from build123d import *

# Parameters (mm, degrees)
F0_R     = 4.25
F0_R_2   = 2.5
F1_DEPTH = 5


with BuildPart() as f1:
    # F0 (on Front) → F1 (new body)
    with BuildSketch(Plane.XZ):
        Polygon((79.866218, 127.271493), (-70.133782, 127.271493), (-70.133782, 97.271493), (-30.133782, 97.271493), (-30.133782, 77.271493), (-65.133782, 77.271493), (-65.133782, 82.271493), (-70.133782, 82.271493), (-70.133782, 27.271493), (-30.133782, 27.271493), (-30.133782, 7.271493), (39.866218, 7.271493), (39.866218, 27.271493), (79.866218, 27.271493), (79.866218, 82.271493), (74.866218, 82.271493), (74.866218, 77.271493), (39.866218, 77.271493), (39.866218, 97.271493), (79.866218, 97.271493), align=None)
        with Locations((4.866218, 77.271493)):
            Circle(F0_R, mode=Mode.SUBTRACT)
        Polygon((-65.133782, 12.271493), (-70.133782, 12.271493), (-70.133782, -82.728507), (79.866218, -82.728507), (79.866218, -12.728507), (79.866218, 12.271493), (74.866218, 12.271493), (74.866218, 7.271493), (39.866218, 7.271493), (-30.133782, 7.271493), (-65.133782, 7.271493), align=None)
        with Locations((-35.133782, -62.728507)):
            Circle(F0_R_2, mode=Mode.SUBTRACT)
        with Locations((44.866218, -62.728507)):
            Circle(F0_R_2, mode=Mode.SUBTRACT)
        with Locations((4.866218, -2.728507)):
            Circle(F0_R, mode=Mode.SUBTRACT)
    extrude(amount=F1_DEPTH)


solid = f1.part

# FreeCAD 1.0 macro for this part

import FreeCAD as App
import Part
import Sketcher

doc = App.newDocument("Part")
body = doc.addObject("PartDesign::Body", "Body")

# Sketch on XZ plane
sketch1 = body.newObject("Sketcher::SketchObject", "Sketch")
sketch1.AttachmentSupport = (doc.getObject("XZ_Plane"), [""])
sketch1.MapMode = "FlatFace"
sketch1.addGeometry([
    Part.LineSegment(App.Vector(79.9, 97.3, 0), App.Vector(79.9, 127.3, 0)),  # 0
    Part.LineSegment(App.Vector(79.9, 127.3, 0), App.Vector(-70.1, 127.3, 0)),  # 1
    Part.LineSegment(App.Vector(-70.1, 127.3, 0), App.Vector(-70.1, 97.3, 0)),  # 2
    Part.LineSegment(App.Vector(-70.1, 97.3, 0), App.Vector(-30.1, 97.3, 0)),  # 3
    Part.LineSegment(App.Vector(-30.1, 97.3, 0), App.Vector(-30.1, 77.3, 0)),  # 4
    Part.LineSegment(App.Vector(-30.1, 77.3, 0), App.Vector(-65.1, 77.3, 0)),  # 5
    Part.LineSegment(App.Vector(-65.1, 77.3, 0), App.Vector(-65.1, 82.3, 0)),  # 6
    Part.LineSegment(App.Vector(-65.1, 82.3, 0), App.Vector(-70.1, 82.3, 0)),  # 7
    Part.LineSegment(App.Vector(-70.1, 82.3, 0), App.Vector(-70.1, 27.3, 0)),  # 8
    Part.LineSegment(App.Vector(-70.1, 27.3, 0), App.Vector(-30.1, 27.3, 0)),  # 9
    Part.LineSegment(App.Vector(-30.1, 27.3, 0), App.Vector(-30.1, 7.3, 0)),  # 10
    Part.LineSegment(App.Vector(-30.1, 7.3, 0), App.Vector(-65.1, 7.3, 0)),  # 11
    Part.LineSegment(App.Vector(-65.1, 7.3, 0), App.Vector(-65.1, 12.3, 0)),  # 12
    Part.LineSegment(App.Vector(-65.1, 12.3, 0), App.Vector(-70.1, 12.3, 0)),  # 13
    Part.LineSegment(App.Vector(-70.1, 12.3, 0), App.Vector(-70.1, -82.7, 0)),  # 14
    Part.LineSegment(App.Vector(-70.1, -82.7, 0), App.Vector(79.9, -82.7, 0)),  # 15
    Part.LineSegment(App.Vector(79.9, -82.7, 0), App.Vector(79.9, 12.3, 0)),  # 16
    Part.LineSegment(App.Vector(79.9, 12.3, 0), App.Vector(74.9, 12.3, 0)),  # 17
    Part.LineSegment(App.Vector(74.9, 12.3, 0), App.Vector(74.9, 7.3, 0)),  # 18
    Part.LineSegment(App.Vector(74.9, 7.3, 0), App.Vector(39.9, 7.3, 0)),  # 19
    Part.LineSegment(App.Vector(39.9, 7.3, 0), App.Vector(39.9, 27.3, 0)),  # 20
    Part.LineSegment(App.Vector(39.9, 27.3, 0), App.Vector(79.9, 27.3, 0)),  # 21
    Part.LineSegment(App.Vector(79.9, 27.3, 0), App.Vector(79.9, 82.3, 0)),  # 22
    Part.LineSegment(App.Vector(79.9, 82.3, 0), App.Vector(74.9, 82.3, 0)),  # 23
    Part.LineSegment(App.Vector(74.9, 82.3, 0), App.Vector(74.9, 77.3, 0)),  # 24
    Part.LineSegment(App.Vector(74.9, 77.3, 0), App.Vector(39.9, 77.3, 0)),  # 25
    Part.LineSegment(App.Vector(39.9, 77.3, 0), App.Vector(39.9, 97.3, 0)),  # 26
    Part.LineSegment(App.Vector(39.9, 97.3, 0), App.Vector(79.9, 97.3, 0)),  # 27
    Part.Circle(App.Vector(-35.1, -62.7, 0), App.Vector(0, 0, 1), 2.5),  # 28
    Part.Circle(App.Vector(44.9, -62.7, 0), App.Vector(0, 0, 1), 2.5),  # 29
    Part.Circle(App.Vector(4.9, -2.7, 0), App.Vector(0, 0, 1), 4.2),  # 30
    Part.Circle(App.Vector(4.9, 77.3, 0), App.Vector(0, 0, 1), 4.2),  # 31
], False)
sketch1.addConstraint([
    Sketcher.Constraint("Coincident", 0, 2, 1, 1),
    Sketcher.Constraint("Coincident", 1, 2, 2, 1),
    Sketcher.Constraint("Coincident", 2, 2, 3, 1),
    Sketcher.Constraint("Coincident", 3, 2, 4, 1),
    Sketcher.Constraint("Coincident", 4, 2, 5, 1),
    Sketcher.Constraint("Coincident", 5, 2, 6, 1),
    Sketcher.Constraint("Coincident", 6, 2, 7, 1),
    Sketcher.Constraint("Coincident", 7, 2, 8, 1),
    Sketcher.Constraint("Coincident", 8, 2, 9, 1),
    Sketcher.Constraint("Coincident", 9, 2, 10, 1),
    Sketcher.Constraint("Coincident", 10, 2, 11, 1),
    Sketcher.Constraint("Coincident", 11, 2, 12, 1),
    Sketcher.Constraint("Coincident", 12, 2, 13, 1),
    Sketcher.Constraint("Coincident", 13, 2, 14, 1),
    Sketcher.Constraint("Coincident", 14, 2, 15, 1),
    Sketcher.Constraint("Coincident", 15, 2, 16, 1),
    Sketcher.Constraint("Coincident", 16, 2, 17, 1),
    Sketcher.Constraint("Coincident", 17, 2, 18, 1),
    Sketcher.Constraint("Coincident", 18, 2, 19, 1),
    Sketcher.Constraint("Coincident", 19, 2, 20, 1),
    Sketcher.Constraint("Coincident", 20, 2, 21, 1),
    Sketcher.Constraint("Coincident", 21, 2, 22, 1),
    Sketcher.Constraint("Coincident", 22, 2, 23, 1),
    Sketcher.Constraint("Coincident", 23, 2, 24, 1),
    Sketcher.Constraint("Coincident", 24, 2, 25, 1),
    Sketcher.Constraint("Coincident", 25, 2, 26, 1),
    Sketcher.Constraint("Coincident", 26, 2, 27, 1),
    Sketcher.Constraint("Coincident", 27, 2, 0, 1),
    Sketcher.Constraint("Vertical", 0),
    Sketcher.Constraint("Horizontal", 1),
    Sketcher.Constraint("Vertical", 2),
    Sketcher.Constraint("Horizontal", 3),
    Sketcher.Constraint("Vertical", 4),
    Sketcher.Constraint("Horizontal", 5),
    Sketcher.Constraint("Vertical", 6),
    Sketcher.Constraint("Horizontal", 7),
    Sketcher.Constraint("Vertical", 8),
    Sketcher.Constraint("Horizontal", 9),
    Sketcher.Constraint("Vertical", 10),
    Sketcher.Constraint("Horizontal", 11),
    Sketcher.Constraint("Vertical", 12),
    Sketcher.Constraint("Horizontal", 13),
    Sketcher.Constraint("Vertical", 14),
    Sketcher.Constraint("Horizontal", 15),
    Sketcher.Constraint("Vertical", 16),
    Sketcher.Constraint("Horizontal", 17),
    Sketcher.Constraint("Vertical", 18),
    Sketcher.Constraint("Horizontal", 19),
    Sketcher.Constraint("Vertical", 20),
    Sketcher.Constraint("Horizontal", 21),
    Sketcher.Constraint("Vertical", 22),
    Sketcher.Constraint("Horizontal", 23),
    Sketcher.Constraint("Vertical", 24),
    Sketcher.Constraint("Horizontal", 25),
    Sketcher.Constraint("Vertical", 26),
    Sketcher.Constraint("Horizontal", 27),
    Sketcher.Constraint("Equal", 28, 29),
    Sketcher.Constraint("Equal", 30, 31),
    Sketcher.Constraint("Horizontal", 28, 3, 29, 3),
    Sketcher.Constraint("Horizontal", 31, 3, 4, 2),
    Sketcher.Constraint("Horizontal", 13, 2, 16, 2),
    Sketcher.Constraint("Horizontal", 11, 2, 18, 2),
    Sketcher.Constraint("Horizontal", 9, 2, 20, 2),
    Sketcher.Constraint("Horizontal", 7, 2, 22, 2),
    Sketcher.Constraint("Horizontal", 5, 2, 24, 2),
    Sketcher.Constraint("Horizontal", 3, 2, 26, 2),
    Sketcher.Constraint("Vertical", 30, 3, 31, 3),
    Sketcher.Constraint("Vertical", 2, 2, 7, 2),
    Sketcher.Constraint("Vertical", 4, 2, 9, 2),
    Sketcher.Constraint("Vertical", 6, 2, 11, 2),
    Sketcher.Constraint("Vertical", 8, 2, 13, 2),
    Sketcher.Constraint("Vertical", 0, 2, 15, 2),
    Sketcher.Constraint("Vertical", 16, 2, 21, 2),
    Sketcher.Constraint("Vertical", 18, 2, 23, 2),
    Sketcher.Constraint("Vertical", 20, 2, 25, 2),
    Sketcher.Constraint("Equal", 13, 17),
    Sketcher.Constraint("Equal", 11, 19),
    Sketcher.Constraint("Equal", 23, 6),
    Sketcher.Constraint("Equal", 4, 10),
    Sketcher.Constraint("Equal", 6, 12),
    Sketcher.Constraint("Diameter", 28, 5.0),
    Sketcher.Constraint("Diameter", 30, 8.5),
    Sketcher.Constraint("DistanceX", 1, 2, 1, 1, 150.0),
    Sketcher.Constraint("DistanceX", 3, 1, 3, 2, 40.0),
    Sketcher.Constraint("DistanceX", 5, 2, 5, 1, 35.0),
    Sketcher.Constraint("DistanceY", 0, 1, 0, 2, 30.0),
    Sketcher.Constraint("DistanceY", 4, 2, 4, 1, 20.0),
    Sketcher.Constraint("DistanceY", 8, 2, 8, 1, 55.0),
    Sketcher.Constraint("DistanceY", 14, 2, 14, 1, 95.0),
    Sketcher.Constraint("DistanceX", 28, 3, 29, 3, 80.0),
    Sketcher.Constraint("DistanceX", 28, 3, 30, 3, 40.0),
    Sketcher.Constraint("DistanceY", 28, 3, 30, 3, 60.0),
    Sketcher.Constraint("DistanceY", 30, 3, 31, 3, 80.0),
    Sketcher.Constraint("DistanceX", 31, 3, 0, 2, 75.0),
    Sketcher.Constraint("DistanceX", 28, 3, -1, 1, 35.133782),
    Sketcher.Constraint("DistanceY", 28, 3, -1, 1, 62.728507),
])
pad1 = body.newObject("PartDesign::Pad", "Pad")
pad1.Profile = sketch1
pad1.Length = 5

doc.recompute()
